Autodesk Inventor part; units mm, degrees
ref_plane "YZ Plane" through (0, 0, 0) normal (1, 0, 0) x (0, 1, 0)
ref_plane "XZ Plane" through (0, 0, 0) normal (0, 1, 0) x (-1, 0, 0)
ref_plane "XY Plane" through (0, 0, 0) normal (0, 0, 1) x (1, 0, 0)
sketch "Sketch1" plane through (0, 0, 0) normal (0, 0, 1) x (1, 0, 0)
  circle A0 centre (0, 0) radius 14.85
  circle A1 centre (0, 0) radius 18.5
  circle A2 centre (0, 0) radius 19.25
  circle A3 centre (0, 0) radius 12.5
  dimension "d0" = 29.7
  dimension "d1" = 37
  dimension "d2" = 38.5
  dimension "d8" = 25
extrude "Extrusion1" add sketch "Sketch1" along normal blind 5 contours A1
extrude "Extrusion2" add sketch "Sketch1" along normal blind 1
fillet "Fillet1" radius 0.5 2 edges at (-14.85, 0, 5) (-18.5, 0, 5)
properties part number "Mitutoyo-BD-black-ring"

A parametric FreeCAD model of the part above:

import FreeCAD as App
import Part
import Sketcher

V = App.Vector


def edges_at(feature, points):
    """Names of the edges that pass closest to the given points."""
    edges = feature.Shape.Edges
    near = lambda p: min(range(len(edges)), key=lambda i: edges[i].distToShape(Part.Vertex(*p))[0])
    return sorted({f"Edge{near(p) + 1}" for p in points})

doc = App.newDocument("Part")
body = doc.addObject("PartDesign::Body", "Body")

sketch1 = body.newObject("Sketcher::SketchObject", "Sketch")
sketch1.AttachmentSupport = (doc.getObject("XY_Plane"), [""])
sketch1.MapMode = "FlatFace"
sketch1.addGeometry(Part.Circle(V(0, 0, 0), V(0, 0, 1), 18), False)
sketch1.addGeometry(Part.Circle(V(0, 0, 0), V(0, 0, 1), 15), False)
sketch1.addConstraint(Sketcher.Constraint("Coincident", 0, 3, -1, 1))
sketch1.addConstraint(Sketcher.Constraint("Coincident", 1, 3, -1, 1))
sketch1.addConstraint(Sketcher.Constraint("Diameter", 0, 37.0))
sketch1.addConstraint(Sketcher.Constraint("Diameter", 1, 29.7))
pad1 = body.newObject("PartDesign::Pad", "Pad")
pad1.Profile = sketch1
pad1.Length = 5

sketch2 = body.newObject("Sketcher::SketchObject", "Sketch001")
sketch2.AttachmentSupport = (doc.getObject("XY_Plane"), [""])
sketch2.MapMode = "FlatFace"
sketch2.addGeometry(Part.Circle(V(0, 0, 0), V(0, 0, 1), 15), False)
sketch2.addGeometry(Part.Circle(V(0, 0, 0), V(0, 0, 1), 12), False)
sketch2.addGeometry(Part.Circle(V(0, 0, 0), V(0, 0, 1), 19), False)
sketch2.addGeometry(Part.Circle(V(0, 0, 0), V(0, 0, 1), 18), False)
sketch2.addConstraint(Sketcher.Constraint("Coincident", 0, 3, -1, 1))
sketch2.addConstraint(Sketcher.Constraint("Coincident", 1, 3, -1, 1))
sketch2.addConstraint(Sketcher.Constraint("Coincident", 2, 3, -1, 1))
sketch2.addConstraint(Sketcher.Constraint("Coincident", 3, 3, -1, 1))
sketch2.addConstraint(Sketcher.Constraint("Diameter", 1, 25.0))
sketch2.addConstraint(Sketcher.Constraint("Diameter", 3, 37.0))
sketch2.addConstraint(Sketcher.Constraint("Diameter", 0, 29.7))
sketch2.addConstraint(Sketcher.Constraint("Diameter", 2, 38.5))
pad2 = body.newObject("PartDesign::Pad", "Pad001")
pad2.Profile = sketch2
pad2.Length = 1
doc.recompute()

fillet = body.newObject("PartDesign::Fillet", "Fillet")
fillet.Base = (pad2, edges_at(pad2, [(-14.85, 0, 5), (-18.5, 0, 5)]))
fillet.Radius = 0.5

doc.recompute()
